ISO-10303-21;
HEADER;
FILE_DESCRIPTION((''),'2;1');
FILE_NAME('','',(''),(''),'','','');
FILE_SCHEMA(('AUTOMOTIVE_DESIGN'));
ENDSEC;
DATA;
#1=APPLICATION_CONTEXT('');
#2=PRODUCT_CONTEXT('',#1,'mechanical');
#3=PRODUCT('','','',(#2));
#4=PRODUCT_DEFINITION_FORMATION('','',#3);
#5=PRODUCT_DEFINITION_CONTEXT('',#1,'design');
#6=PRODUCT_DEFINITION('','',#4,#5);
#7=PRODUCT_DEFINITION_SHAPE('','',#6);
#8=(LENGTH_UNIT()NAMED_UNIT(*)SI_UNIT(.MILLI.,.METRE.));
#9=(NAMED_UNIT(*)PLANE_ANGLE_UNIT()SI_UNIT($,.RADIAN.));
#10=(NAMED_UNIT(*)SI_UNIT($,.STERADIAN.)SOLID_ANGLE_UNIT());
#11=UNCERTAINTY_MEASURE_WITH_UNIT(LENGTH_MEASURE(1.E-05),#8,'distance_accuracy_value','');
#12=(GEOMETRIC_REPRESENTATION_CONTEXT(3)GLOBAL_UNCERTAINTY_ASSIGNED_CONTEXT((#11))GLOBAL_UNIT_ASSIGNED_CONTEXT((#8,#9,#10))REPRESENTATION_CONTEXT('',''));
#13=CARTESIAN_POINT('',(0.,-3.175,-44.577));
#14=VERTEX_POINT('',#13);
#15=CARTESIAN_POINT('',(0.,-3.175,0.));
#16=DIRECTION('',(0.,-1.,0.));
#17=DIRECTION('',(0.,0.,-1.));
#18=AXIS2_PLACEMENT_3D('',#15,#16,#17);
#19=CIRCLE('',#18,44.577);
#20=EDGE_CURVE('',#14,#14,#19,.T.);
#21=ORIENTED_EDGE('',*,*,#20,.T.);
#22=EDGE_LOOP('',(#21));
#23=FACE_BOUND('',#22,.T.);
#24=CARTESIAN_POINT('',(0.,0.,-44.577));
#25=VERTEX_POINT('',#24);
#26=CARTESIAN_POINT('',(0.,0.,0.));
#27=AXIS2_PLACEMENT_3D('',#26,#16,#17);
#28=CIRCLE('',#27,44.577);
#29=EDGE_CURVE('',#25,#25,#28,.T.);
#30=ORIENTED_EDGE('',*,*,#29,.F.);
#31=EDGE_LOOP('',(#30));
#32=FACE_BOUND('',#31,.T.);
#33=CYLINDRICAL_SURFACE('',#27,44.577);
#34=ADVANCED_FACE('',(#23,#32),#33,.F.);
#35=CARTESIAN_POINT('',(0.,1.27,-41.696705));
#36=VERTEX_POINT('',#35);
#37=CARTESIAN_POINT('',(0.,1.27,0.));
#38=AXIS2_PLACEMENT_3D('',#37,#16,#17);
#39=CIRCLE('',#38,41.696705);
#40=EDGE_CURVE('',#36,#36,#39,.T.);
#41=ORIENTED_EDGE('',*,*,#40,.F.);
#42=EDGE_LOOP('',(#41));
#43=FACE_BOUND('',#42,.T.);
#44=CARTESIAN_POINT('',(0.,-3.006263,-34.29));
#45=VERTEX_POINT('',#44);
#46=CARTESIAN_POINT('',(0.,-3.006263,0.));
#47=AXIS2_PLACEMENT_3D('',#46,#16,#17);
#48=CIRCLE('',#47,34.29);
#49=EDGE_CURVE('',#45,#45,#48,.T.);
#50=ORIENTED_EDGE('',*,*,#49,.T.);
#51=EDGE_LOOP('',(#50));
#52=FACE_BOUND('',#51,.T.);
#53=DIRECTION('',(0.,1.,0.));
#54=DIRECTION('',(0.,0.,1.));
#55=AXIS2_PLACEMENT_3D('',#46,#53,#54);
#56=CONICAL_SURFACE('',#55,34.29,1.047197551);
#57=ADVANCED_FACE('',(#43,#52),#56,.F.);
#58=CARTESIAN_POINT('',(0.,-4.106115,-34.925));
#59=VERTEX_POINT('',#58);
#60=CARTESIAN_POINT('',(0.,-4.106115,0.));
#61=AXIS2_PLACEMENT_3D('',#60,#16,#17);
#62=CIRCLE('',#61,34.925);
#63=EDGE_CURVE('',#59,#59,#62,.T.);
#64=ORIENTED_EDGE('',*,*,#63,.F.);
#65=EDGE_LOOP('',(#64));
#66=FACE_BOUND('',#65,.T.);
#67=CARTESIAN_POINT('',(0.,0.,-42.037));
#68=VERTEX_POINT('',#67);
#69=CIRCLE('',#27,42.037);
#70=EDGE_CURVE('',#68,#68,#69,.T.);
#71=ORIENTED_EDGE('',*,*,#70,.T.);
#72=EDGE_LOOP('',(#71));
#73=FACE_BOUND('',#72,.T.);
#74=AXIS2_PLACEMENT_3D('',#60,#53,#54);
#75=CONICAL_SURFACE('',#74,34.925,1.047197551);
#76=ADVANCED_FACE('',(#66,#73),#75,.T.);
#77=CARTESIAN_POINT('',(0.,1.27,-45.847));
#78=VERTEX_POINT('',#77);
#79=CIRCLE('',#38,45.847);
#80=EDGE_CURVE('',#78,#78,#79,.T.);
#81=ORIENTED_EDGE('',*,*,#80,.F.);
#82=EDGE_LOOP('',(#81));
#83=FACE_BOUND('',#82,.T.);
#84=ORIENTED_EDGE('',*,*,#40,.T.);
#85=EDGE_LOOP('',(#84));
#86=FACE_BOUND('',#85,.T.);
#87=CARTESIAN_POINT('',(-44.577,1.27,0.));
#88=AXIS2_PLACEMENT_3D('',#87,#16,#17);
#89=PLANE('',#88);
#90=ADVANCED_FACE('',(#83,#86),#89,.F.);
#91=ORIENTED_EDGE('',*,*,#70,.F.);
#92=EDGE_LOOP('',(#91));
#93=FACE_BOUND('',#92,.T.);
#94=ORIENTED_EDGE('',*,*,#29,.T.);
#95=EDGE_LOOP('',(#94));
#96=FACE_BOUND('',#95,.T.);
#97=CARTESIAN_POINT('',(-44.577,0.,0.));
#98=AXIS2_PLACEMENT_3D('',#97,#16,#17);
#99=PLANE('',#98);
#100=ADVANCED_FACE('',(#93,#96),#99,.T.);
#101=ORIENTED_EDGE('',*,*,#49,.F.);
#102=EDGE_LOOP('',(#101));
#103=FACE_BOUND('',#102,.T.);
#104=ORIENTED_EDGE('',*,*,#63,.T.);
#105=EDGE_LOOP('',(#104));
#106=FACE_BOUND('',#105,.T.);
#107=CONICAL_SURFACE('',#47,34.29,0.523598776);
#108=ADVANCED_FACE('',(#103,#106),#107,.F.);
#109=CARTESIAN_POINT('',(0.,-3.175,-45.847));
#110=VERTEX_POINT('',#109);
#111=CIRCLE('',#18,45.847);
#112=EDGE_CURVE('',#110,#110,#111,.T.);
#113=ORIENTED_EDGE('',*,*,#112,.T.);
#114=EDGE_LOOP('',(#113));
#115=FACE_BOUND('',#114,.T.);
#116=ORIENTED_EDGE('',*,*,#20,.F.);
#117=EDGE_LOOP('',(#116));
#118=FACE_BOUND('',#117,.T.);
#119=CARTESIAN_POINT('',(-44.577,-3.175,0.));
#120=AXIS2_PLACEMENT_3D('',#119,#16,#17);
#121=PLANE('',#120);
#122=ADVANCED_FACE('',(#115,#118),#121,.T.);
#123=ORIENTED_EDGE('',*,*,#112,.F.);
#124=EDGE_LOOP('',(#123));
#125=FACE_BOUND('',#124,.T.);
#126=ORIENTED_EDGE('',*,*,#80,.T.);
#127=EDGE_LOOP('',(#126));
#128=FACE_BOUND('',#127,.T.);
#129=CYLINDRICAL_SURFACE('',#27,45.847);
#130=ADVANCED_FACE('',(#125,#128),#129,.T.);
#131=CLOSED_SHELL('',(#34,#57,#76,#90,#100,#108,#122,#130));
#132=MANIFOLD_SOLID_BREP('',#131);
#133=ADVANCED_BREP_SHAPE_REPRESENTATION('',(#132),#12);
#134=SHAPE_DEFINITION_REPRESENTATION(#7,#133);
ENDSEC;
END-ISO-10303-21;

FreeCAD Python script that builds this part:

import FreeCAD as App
import Part
import Sketcher
from FreeCAD import Vector
Q = App.Units.Quantity


def add_polygon(sketch, points):
    """Adds a closed chain of lines whose ends are joined by coincident constraints."""
    first, n = sketch.GeometryCount, len(points)
    for a, b in zip(points, points[1:] + points[:1]):
        sketch.addGeometry(Part.LineSegment(App.Vector(*a, 0), App.Vector(*b, 0)), False)
    for i in range(n):
        sketch.addConstraint(Sketcher.Constraint("Coincident", first + i, 2, first + (i + 1) % n, 1))

doc = App.newDocument("Part")
body = doc.addObject("PartDesign::Body", "Body")

# Sketch on XY plane
sketch1 = body.newObject("Sketcher::SketchObject", "Sketch")
sketch1.AttachmentSupport = (doc.getObject("XY_Plane"), [""])
sketch1.MapMode = "FlatFace"
add_polygon(sketch1, [(-42, 0), (-34.9, -4.1), (-34.3, -3), (-41.7, 1.3), (-45.8, 1.3), (-45.8, -3.2), (-44.6, -3.2), (-44.6, 0)])  # lines 0-7
sketch1.addConstraint(Sketcher.Constraint("Horizontal", 3))
sketch1.addConstraint(Sketcher.Constraint("Vertical", 4))
sketch1.addConstraint(Sketcher.Constraint("Horizontal", 5))
sketch1.addConstraint(Sketcher.Constraint("Vertical", 6))
sketch1.addConstraint(Sketcher.Constraint("Horizontal", 7))
sketch1.addConstraint(Sketcher.Constraint("PointOnObject", 6, 2, -1))
sketch1.addConstraint(Sketcher.Constraint("Perpendicular", 0, 1))
sketch1.addConstraint(Sketcher.Constraint("Perpendicular", 1, 2))
sketch1.addConstraint(Sketcher.Constraint("DistanceX", 7, 1, 7, 2, Q("0.1 in")))
sketch1.addConstraint(Sketcher.Constraint("Angle", 0, Q("-30 deg")))
sketch1.addConstraint(Sketcher.Constraint("DistanceX", 5, 1, 5, 2, Q("0.05 in")))
sketch1.addConstraint(Sketcher.Constraint("Distance", 1, Q("0.05 in")))
sketch1.addConstraint(Sketcher.Constraint("DistanceY", 4, 2, 4, 1, Q("0.175 in")))
sketch1.addConstraint(Sketcher.Constraint("DistanceY", 6, 1, 6, 2, Q("0.125 in")))
sketch1.addConstraint(Sketcher.Constraint("DistanceX", 1, 2, -1, 1, Q("1.35 in")))
sketch1.addConstraint(Sketcher.Constraint("DistanceX", 3, 2, 0, 2, Q("0.43 in")))
revolution = body.newObject("PartDesign::Revolution", "Revolution")
revolution.Profile = sketch1
revolution.ReferenceAxis = (sketch1, ["V_Axis"])
revolution.Angle = 360

doc.recompute()
